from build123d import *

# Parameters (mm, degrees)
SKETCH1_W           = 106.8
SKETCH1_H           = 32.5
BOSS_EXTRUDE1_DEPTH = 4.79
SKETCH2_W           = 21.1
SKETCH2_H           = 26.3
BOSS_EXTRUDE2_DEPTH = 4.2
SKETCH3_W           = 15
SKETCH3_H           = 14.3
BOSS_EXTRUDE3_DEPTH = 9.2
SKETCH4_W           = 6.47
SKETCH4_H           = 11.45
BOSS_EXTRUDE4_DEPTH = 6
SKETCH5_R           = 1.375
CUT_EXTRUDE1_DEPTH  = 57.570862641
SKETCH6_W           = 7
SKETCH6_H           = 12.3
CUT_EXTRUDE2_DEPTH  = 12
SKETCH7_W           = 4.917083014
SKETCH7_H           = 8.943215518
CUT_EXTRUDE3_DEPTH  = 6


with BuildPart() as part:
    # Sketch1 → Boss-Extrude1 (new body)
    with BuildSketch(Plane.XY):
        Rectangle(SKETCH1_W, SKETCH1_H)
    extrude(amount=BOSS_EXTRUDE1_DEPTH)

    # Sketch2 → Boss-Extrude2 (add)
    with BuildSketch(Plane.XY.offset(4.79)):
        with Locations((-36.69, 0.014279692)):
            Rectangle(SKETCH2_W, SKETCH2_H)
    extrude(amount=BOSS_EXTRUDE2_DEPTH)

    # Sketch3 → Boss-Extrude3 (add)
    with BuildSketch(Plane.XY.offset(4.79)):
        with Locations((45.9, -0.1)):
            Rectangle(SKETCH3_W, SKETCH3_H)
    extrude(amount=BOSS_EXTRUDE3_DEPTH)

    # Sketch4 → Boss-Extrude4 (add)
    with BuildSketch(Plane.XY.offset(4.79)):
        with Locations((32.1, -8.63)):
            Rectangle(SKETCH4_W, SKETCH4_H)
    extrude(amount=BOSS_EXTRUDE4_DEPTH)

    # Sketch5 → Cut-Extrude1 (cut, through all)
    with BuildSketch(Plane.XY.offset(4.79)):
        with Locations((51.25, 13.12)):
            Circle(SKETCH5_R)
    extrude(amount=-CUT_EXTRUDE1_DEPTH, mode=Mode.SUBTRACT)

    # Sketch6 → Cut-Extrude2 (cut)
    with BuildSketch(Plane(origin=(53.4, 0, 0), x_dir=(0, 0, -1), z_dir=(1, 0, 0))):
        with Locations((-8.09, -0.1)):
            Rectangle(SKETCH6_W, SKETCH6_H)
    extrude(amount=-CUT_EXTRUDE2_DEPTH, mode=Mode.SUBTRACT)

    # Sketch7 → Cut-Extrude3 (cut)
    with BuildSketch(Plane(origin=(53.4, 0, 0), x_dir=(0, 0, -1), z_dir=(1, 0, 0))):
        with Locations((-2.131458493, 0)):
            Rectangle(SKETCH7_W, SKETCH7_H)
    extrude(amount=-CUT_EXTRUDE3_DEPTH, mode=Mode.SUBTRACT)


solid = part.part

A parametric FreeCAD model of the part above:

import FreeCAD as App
import Part
import Sketcher
Q = App.Units.Quantity


def add_polygon(sketch, points):
    """Adds a closed chain of lines whose ends are joined by coincident constraints."""
    first, n = sketch.GeometryCount, len(points)
    for a, b in zip(points, points[1:] + points[:1]):
        sketch.addGeometry(Part.LineSegment(App.Vector(*a, 0), App.Vector(*b, 0)), False)
    for i in range(n):
        sketch.addConstraint(Sketcher.Constraint("Coincident", first + i, 2, first + (i + 1) % n, 1))

doc = App.newDocument("Part")
body = doc.addObject("PartDesign::Body", "Body")

sketch1 = doc.addObject("Sketcher::SketchObject", "Sketch")
body.addObject(sketch1)
sketch1.AttachmentSupport = (doc.XY_Plane, [""])
sketch1.MapMode = "FlatFace"
add_polygon(sketch1, [(-53.4, 16.25), (-53.4, -16.25), (53.4, -16.25), (53.4, 16.25)])
sketch1.addConstraint([
    Sketcher.Constraint("Vertical", 0),
    Sketcher.Constraint("Horizontal", 1),
    Sketcher.Constraint("Vertical", 2),
    Sketcher.Constraint("Horizontal", 3),
    Sketcher.Constraint("Symmetric", 0, 2, 2, 2, -1, 1),
    Sketcher.Constraint("DistanceX", 1, 1, 1, 2, Q("106.8 mm")),
    Sketcher.Constraint("DistanceY", 0, 2, 0, 1, Q("32.5 mm")),
])
pad1 = doc.addObject("PartDesign::Pad", "Pad")
body.addObject(pad1)
pad1.Profile = sketch1
pad1.Length = 4.79

sketch2 = doc.addObject("Sketcher::SketchObject", "Sketch001")
body.addObject(sketch2)
sketch2.AttachmentSupport = (doc.XY_Plane, [""])
sketch2.MapMode = "FlatFace"
sketch2.AttachmentOffset = App.Placement(App.Vector(0, 0, 4.79), App.Rotation())
add_polygon(sketch2, [(-47.24, 13.16428), (-47.24, -13.13572), (-26.14, -13.13572), (-26.14, 13.16428)])
sketch2.addConstraint([
    Sketcher.Constraint("Vertical", 0),
    Sketcher.Constraint("Horizontal", 1),
    Sketcher.Constraint("Vertical", 2),
    Sketcher.Constraint("Horizontal", 3),
    Sketcher.Constraint("DistanceX", 1, 1, 1, 2, Q("21.1 mm")),
    Sketcher.Constraint("DistanceY", 0, 2, 0, 1, Q("26.3 mm")),
    Sketcher.Constraint("DistanceX", 0, 2, -1, 1, Q("47.24 mm")),
    Sketcher.Constraint("DistanceY", 0, 2, -1, 1, Q("13.13572 mm")),
])
pad2 = doc.addObject("PartDesign::Pad", "Pad001")
body.addObject(pad2)
pad2.Profile = sketch2
pad2.Length = 4.2

sketch3 = doc.addObject("Sketcher::SketchObject", "Sketch002")
body.addObject(sketch3)
sketch3.AttachmentSupport = (doc.XY_Plane, [""])
sketch3.MapMode = "FlatFace"
sketch3.AttachmentOffset = App.Placement(App.Vector(0, 0, 4.79), App.Rotation())
add_polygon(sketch3, [(38.4, 7.05), (38.4, -7.25), (53.4, -7.25), (53.4, 7.05)])
sketch3.addConstraint([
    Sketcher.Constraint("Vertical", 0),
    Sketcher.Constraint("Horizontal", 1),
    Sketcher.Constraint("Vertical", 2),
    Sketcher.Constraint("Horizontal", 3),
    Sketcher.Constraint("DistanceX", 1, 1, 1, 2, Q("15 mm")),
    Sketcher.Constraint("DistanceY", 0, 2, 0, 1, Q("14.3 mm")),
    Sketcher.Constraint("DistanceX", -1, 1, 0, 2, Q("38.4 mm")),
    Sketcher.Constraint("DistanceY", 0, 2, -1, 1, Q("7.25 mm")),
])
pad3 = doc.addObject("PartDesign::Pad", "Pad002")
body.addObject(pad3)
pad3.Profile = sketch3
pad3.Length = 9.2

sketch4 = doc.addObject("Sketcher::SketchObject", "Sketch003")
body.addObject(sketch4)
sketch4.AttachmentSupport = (doc.XY_Plane, [""])
sketch4.MapMode = "FlatFace"
sketch4.AttachmentOffset = App.Placement(App.Vector(0, 0, 4.79), App.Rotation())
add_polygon(sketch4, [(28.865, -2.905), (28.865, -14.355), (35.335, -14.355), (35.335, -2.905)])
sketch4.addConstraint([
    Sketcher.Constraint("Vertical", 0),
    Sketcher.Constraint("Horizontal", 1),
    Sketcher.Constraint("Vertical", 2),
    Sketcher.Constraint("Horizontal", 3),
    Sketcher.Constraint("DistanceX", 1, 1, 1, 2, Q("6.47 mm")),
    Sketcher.Constraint("DistanceY", 0, 2, 0, 1, Q("11.45 mm")),
    Sketcher.Constraint("DistanceX", -1, 1, 0, 2, Q("28.865 mm")),
    Sketcher.Constraint("DistanceY", 0, 2, -1, 1, Q("14.355 mm")),
])
pad4 = doc.addObject("PartDesign::Pad", "Pad003")
body.addObject(pad4)
pad4.Profile = sketch4
pad4.Length = 6

sketch5 = doc.addObject("Sketcher::SketchObject", "Sketch004")
body.addObject(sketch5)
sketch5.AttachmentSupport = (doc.XY_Plane, [""])
sketch5.MapMode = "FlatFace"
sketch5.AttachmentOffset = App.Placement(App.Vector(0, 0, 4.79), App.Rotation())
sketch5.addGeometry(Part.Circle(App.Vector(51.25, 13.12, 0), App.Vector(0, 0, 1), 1.375), False)
sketch5.addConstraint([
    Sketcher.Constraint("Diameter", 0, Q("2.75 mm")),
    Sketcher.Constraint("DistanceX", -1, 1, 0, 3, Q("51.25 mm")),
    Sketcher.Constraint("DistanceY", -1, 1, 0, 3, Q("13.12 mm")),
])
pocket1 = doc.addObject("PartDesign::Pocket", "Pocket")
body.addObject(pocket1)
pocket1.Profile = sketch5
pocket1.Type = "ThroughAll"

sketch6 = doc.addObject("Sketcher::SketchObject", "Sketch005")
body.addObject(sketch6)
sketch6.AttachmentSupport = (doc.YZ_Plane, [""])
sketch6.MapMode = "FlatFace"
sketch6.AttachmentOffset = App.Placement(App.Vector(0, 0, 53.4), App.Rotation())
add_polygon(sketch6, [(6.05, 11.59), (-6.25, 11.59), (-6.25, 4.59), (6.05, 4.59)])
sketch6.addConstraint([
    Sketcher.Constraint("Horizontal", 0),
    Sketcher.Constraint("Vertical", 1),
    Sketcher.Constraint("Horizontal", 2),
    Sketcher.Constraint("Vertical", 3),
    Sketcher.Constraint("DistanceY", 1, 2, 1, 1, Q("7 mm")),
    Sketcher.Constraint("DistanceX", 0, 2, 0, 1, Q("12.3 mm")),
    Sketcher.Constraint("DistanceX", 0, 2, -1, 1, Q("6.25 mm")),
    Sketcher.Constraint("DistanceY", -1, 1, 0, 2, Q("11.59 mm")),
])
pocket2 = doc.addObject("PartDesign::Pocket", "Pocket001")
body.addObject(pocket2)
pocket2.Profile = sketch6
pocket2.Length = 12

sketch7 = doc.addObject("Sketcher::SketchObject", "Sketch006")
body.addObject(sketch7)
sketch7.AttachmentSupport = (doc.YZ_Plane, [""])
sketch7.MapMode = "FlatFace"
sketch7.AttachmentOffset = App.Placement(App.Vector(0, 0, 53.4), App.Rotation())
add_polygon(sketch7, [(4.471608, 4.59), (-4.471608, 4.59), (-4.471608, -0.327083), (4.471608, -0.327083)])
sketch7.addConstraint([
    Sketcher.Constraint("Horizontal", 0),
    Sketcher.Constraint("Vertical", 1),
    Sketcher.Constraint("Horizontal", 2),
    Sketcher.Constraint("Vertical", 3),
    Sketcher.Constraint("DistanceY", -1, 1, 0, 2, Q("4.59 mm")),
    Sketcher.Constraint("DistanceX", 0, 2, 0, 1, Q("8.943216 mm")),
    Sketcher.Constraint("DistanceY", 1, 2, 1, 1, Q("4.917083 mm")),
    Sketcher.Constraint("DistanceX", 0, 2, -1, 1, Q("4.471608 mm")),
])
pocket3 = doc.addObject("PartDesign::Pocket", "Pocket002")
body.addObject(pocket3)
pocket3.Profile = sketch7
pocket3.Length = 6

doc.recompute()
